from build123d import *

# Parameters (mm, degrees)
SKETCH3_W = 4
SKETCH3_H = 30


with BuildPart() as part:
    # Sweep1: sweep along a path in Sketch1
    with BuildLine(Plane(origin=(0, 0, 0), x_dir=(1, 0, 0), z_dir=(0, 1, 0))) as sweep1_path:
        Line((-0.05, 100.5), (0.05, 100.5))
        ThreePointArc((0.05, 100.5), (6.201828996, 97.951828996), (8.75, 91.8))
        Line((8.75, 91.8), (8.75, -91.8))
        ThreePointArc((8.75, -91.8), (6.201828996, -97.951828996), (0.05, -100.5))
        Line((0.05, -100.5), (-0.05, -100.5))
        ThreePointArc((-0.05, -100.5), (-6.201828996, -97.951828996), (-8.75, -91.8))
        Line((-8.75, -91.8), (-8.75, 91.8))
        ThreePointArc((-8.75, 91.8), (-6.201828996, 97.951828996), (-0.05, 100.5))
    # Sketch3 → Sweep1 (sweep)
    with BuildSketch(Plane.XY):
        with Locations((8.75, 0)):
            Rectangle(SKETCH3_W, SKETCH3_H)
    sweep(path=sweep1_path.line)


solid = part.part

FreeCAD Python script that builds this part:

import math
import FreeCAD as App
import Part
import Sketcher
from FreeCAD import Vector
Q = App.Units.Quantity

doc = App.newDocument("Part")
body = doc.addObject("PartDesign::Body", "Body")

# Sketch on XY plane
sketch1 = body.newObject("Sketcher::SketchObject", "Sketch")
sketch1.AttachmentSupport = (doc.getObject("XY_Plane"), [""])
sketch1.MapMode = "FlatFace"
sketch1.addGeometry([
    Part.LineSegment(Vector(6.8, 15, 0), Vector(6.8, -15, 0)),
    Part.LineSegment(Vector(6.8, -15, 0), Vector(10.8, -15, 0)),
    Part.LineSegment(Vector(10.8, -15, 0), Vector(10.8, 15, 0)),
    Part.LineSegment(Vector(10.8, 15, 0), Vector(6.8, 15, 0)),
], False)
sketch1.addConstraint([
    Sketcher.Constraint("Coincident", 0, 2, 1, 1),
    Sketcher.Constraint("Coincident", 1, 2, 2, 1),
    Sketcher.Constraint("Coincident", 2, 2, 3, 1),
    Sketcher.Constraint("Coincident", 3, 2, 0, 1),
    Sketcher.Constraint("Vertical", 0),
    Sketcher.Constraint("Horizontal", 1),
    Sketcher.Constraint("Vertical", 2),
    Sketcher.Constraint("Horizontal", 3),
    Sketcher.Constraint("DistanceX", 1, 1, 1, 2, Q("4 mm")),
    Sketcher.Constraint("DistanceY", 0, 2, 0, 1, Q("30 mm")),
    Sketcher.Constraint("DistanceY", 0, 2, -1, 1, Q("15 mm")),
    Sketcher.Constraint("DistanceX", -1, 1, 0, 2, Q("6.75 mm")),
])

# Sketch on XZ plane
sketch2 = body.newObject("Sketcher::SketchObject", "Sketch001")
sketch2.AttachmentSupport = (doc.getObject("XZ_Plane"), [""])
sketch2.MapMode = "FlatFace"
sketch2.addGeometry([
    Part.LineSegment(Vector(-0.05, -100.5, 0), Vector(0.05, -100.5, 0)),  # 0
    Part.ArcOfCircle(Part.Circle(Vector(0.05, -91.8, 0), Vector(0, 0, 1), 8.7), math.radians(-90), math.radians(0)),  # 1
    Part.LineSegment(Vector(8.75, -91.8, 0), Vector(8.75, 91.8, 0)),  # 2
    Part.ArcOfCircle(Part.Circle(Vector(0.05, 91.8, 0), Vector(0, 0, 1), 8.7), math.radians(0), math.radians(90)),  # 3
    Part.LineSegment(Vector(0.05, 100.5, 0), Vector(-0.05, 100.5, 0)),  # 4
    Part.ArcOfCircle(Part.Circle(Vector(-0.05, 91.8, 0), Vector(0, 0, 1), 8.7), math.radians(90), math.radians(180)),  # 5
    Part.LineSegment(Vector(-8.75, 91.8, 0), Vector(-8.75, -91.8, 0)),  # 6
    Part.ArcOfCircle(Part.Circle(Vector(-0.05, -91.8, 0), Vector(0, 0, 1), 8.7), math.radians(-180), math.radians(-90)),  # 7
], False)
sketch2.addConstraint([
    Sketcher.Constraint("Tangent", 0, 2, 1, 1),
    Sketcher.Constraint("Tangent", 1, 2, 2, 1),
    Sketcher.Constraint("Tangent", 2, 2, 3, 1),
    Sketcher.Constraint("Tangent", 3, 2, 4, 1),
    Sketcher.Constraint("Tangent", 4, 2, 5, 1),
    Sketcher.Constraint("Tangent", 5, 2, 6, 1),
    Sketcher.Constraint("Tangent", 6, 2, 7, 1),
    Sketcher.Constraint("Tangent", 7, 2, 0, 1),
    Sketcher.Constraint("Horizontal", 0),
    Sketcher.Constraint("Vertical", 2),
    Sketcher.Constraint("Horizontal", 4),
    Sketcher.Constraint("Vertical", 6),
    Sketcher.Constraint("Equal", 1, 3),
    Sketcher.Constraint("Equal", 3, 5),
    Sketcher.Constraint("Equal", 5, 7),
    Sketcher.Constraint("Symmetric", 1, 3, 5, 3, -1, 1),
    Sketcher.Constraint("Radius", 1, Q("8.7 mm")),
    Sketcher.Constraint("DistanceX", 0, 1, 0, 2, Q("0.1 mm")),
    Sketcher.Constraint("DistanceY", 2, 1, 2, 2, Q("183.6 mm")),
])
doc.recompute()

additivepipe = body.newObject("PartDesign::AdditivePipe", "AdditivePipe")
additivepipe.Profile = sketch1
additivepipe.Spine = (sketch2, ["Edge1", "Edge2", "Edge3", "Edge4", "Edge5", "Edge6", "Edge7", "Edge8"])

doc.recompute()
